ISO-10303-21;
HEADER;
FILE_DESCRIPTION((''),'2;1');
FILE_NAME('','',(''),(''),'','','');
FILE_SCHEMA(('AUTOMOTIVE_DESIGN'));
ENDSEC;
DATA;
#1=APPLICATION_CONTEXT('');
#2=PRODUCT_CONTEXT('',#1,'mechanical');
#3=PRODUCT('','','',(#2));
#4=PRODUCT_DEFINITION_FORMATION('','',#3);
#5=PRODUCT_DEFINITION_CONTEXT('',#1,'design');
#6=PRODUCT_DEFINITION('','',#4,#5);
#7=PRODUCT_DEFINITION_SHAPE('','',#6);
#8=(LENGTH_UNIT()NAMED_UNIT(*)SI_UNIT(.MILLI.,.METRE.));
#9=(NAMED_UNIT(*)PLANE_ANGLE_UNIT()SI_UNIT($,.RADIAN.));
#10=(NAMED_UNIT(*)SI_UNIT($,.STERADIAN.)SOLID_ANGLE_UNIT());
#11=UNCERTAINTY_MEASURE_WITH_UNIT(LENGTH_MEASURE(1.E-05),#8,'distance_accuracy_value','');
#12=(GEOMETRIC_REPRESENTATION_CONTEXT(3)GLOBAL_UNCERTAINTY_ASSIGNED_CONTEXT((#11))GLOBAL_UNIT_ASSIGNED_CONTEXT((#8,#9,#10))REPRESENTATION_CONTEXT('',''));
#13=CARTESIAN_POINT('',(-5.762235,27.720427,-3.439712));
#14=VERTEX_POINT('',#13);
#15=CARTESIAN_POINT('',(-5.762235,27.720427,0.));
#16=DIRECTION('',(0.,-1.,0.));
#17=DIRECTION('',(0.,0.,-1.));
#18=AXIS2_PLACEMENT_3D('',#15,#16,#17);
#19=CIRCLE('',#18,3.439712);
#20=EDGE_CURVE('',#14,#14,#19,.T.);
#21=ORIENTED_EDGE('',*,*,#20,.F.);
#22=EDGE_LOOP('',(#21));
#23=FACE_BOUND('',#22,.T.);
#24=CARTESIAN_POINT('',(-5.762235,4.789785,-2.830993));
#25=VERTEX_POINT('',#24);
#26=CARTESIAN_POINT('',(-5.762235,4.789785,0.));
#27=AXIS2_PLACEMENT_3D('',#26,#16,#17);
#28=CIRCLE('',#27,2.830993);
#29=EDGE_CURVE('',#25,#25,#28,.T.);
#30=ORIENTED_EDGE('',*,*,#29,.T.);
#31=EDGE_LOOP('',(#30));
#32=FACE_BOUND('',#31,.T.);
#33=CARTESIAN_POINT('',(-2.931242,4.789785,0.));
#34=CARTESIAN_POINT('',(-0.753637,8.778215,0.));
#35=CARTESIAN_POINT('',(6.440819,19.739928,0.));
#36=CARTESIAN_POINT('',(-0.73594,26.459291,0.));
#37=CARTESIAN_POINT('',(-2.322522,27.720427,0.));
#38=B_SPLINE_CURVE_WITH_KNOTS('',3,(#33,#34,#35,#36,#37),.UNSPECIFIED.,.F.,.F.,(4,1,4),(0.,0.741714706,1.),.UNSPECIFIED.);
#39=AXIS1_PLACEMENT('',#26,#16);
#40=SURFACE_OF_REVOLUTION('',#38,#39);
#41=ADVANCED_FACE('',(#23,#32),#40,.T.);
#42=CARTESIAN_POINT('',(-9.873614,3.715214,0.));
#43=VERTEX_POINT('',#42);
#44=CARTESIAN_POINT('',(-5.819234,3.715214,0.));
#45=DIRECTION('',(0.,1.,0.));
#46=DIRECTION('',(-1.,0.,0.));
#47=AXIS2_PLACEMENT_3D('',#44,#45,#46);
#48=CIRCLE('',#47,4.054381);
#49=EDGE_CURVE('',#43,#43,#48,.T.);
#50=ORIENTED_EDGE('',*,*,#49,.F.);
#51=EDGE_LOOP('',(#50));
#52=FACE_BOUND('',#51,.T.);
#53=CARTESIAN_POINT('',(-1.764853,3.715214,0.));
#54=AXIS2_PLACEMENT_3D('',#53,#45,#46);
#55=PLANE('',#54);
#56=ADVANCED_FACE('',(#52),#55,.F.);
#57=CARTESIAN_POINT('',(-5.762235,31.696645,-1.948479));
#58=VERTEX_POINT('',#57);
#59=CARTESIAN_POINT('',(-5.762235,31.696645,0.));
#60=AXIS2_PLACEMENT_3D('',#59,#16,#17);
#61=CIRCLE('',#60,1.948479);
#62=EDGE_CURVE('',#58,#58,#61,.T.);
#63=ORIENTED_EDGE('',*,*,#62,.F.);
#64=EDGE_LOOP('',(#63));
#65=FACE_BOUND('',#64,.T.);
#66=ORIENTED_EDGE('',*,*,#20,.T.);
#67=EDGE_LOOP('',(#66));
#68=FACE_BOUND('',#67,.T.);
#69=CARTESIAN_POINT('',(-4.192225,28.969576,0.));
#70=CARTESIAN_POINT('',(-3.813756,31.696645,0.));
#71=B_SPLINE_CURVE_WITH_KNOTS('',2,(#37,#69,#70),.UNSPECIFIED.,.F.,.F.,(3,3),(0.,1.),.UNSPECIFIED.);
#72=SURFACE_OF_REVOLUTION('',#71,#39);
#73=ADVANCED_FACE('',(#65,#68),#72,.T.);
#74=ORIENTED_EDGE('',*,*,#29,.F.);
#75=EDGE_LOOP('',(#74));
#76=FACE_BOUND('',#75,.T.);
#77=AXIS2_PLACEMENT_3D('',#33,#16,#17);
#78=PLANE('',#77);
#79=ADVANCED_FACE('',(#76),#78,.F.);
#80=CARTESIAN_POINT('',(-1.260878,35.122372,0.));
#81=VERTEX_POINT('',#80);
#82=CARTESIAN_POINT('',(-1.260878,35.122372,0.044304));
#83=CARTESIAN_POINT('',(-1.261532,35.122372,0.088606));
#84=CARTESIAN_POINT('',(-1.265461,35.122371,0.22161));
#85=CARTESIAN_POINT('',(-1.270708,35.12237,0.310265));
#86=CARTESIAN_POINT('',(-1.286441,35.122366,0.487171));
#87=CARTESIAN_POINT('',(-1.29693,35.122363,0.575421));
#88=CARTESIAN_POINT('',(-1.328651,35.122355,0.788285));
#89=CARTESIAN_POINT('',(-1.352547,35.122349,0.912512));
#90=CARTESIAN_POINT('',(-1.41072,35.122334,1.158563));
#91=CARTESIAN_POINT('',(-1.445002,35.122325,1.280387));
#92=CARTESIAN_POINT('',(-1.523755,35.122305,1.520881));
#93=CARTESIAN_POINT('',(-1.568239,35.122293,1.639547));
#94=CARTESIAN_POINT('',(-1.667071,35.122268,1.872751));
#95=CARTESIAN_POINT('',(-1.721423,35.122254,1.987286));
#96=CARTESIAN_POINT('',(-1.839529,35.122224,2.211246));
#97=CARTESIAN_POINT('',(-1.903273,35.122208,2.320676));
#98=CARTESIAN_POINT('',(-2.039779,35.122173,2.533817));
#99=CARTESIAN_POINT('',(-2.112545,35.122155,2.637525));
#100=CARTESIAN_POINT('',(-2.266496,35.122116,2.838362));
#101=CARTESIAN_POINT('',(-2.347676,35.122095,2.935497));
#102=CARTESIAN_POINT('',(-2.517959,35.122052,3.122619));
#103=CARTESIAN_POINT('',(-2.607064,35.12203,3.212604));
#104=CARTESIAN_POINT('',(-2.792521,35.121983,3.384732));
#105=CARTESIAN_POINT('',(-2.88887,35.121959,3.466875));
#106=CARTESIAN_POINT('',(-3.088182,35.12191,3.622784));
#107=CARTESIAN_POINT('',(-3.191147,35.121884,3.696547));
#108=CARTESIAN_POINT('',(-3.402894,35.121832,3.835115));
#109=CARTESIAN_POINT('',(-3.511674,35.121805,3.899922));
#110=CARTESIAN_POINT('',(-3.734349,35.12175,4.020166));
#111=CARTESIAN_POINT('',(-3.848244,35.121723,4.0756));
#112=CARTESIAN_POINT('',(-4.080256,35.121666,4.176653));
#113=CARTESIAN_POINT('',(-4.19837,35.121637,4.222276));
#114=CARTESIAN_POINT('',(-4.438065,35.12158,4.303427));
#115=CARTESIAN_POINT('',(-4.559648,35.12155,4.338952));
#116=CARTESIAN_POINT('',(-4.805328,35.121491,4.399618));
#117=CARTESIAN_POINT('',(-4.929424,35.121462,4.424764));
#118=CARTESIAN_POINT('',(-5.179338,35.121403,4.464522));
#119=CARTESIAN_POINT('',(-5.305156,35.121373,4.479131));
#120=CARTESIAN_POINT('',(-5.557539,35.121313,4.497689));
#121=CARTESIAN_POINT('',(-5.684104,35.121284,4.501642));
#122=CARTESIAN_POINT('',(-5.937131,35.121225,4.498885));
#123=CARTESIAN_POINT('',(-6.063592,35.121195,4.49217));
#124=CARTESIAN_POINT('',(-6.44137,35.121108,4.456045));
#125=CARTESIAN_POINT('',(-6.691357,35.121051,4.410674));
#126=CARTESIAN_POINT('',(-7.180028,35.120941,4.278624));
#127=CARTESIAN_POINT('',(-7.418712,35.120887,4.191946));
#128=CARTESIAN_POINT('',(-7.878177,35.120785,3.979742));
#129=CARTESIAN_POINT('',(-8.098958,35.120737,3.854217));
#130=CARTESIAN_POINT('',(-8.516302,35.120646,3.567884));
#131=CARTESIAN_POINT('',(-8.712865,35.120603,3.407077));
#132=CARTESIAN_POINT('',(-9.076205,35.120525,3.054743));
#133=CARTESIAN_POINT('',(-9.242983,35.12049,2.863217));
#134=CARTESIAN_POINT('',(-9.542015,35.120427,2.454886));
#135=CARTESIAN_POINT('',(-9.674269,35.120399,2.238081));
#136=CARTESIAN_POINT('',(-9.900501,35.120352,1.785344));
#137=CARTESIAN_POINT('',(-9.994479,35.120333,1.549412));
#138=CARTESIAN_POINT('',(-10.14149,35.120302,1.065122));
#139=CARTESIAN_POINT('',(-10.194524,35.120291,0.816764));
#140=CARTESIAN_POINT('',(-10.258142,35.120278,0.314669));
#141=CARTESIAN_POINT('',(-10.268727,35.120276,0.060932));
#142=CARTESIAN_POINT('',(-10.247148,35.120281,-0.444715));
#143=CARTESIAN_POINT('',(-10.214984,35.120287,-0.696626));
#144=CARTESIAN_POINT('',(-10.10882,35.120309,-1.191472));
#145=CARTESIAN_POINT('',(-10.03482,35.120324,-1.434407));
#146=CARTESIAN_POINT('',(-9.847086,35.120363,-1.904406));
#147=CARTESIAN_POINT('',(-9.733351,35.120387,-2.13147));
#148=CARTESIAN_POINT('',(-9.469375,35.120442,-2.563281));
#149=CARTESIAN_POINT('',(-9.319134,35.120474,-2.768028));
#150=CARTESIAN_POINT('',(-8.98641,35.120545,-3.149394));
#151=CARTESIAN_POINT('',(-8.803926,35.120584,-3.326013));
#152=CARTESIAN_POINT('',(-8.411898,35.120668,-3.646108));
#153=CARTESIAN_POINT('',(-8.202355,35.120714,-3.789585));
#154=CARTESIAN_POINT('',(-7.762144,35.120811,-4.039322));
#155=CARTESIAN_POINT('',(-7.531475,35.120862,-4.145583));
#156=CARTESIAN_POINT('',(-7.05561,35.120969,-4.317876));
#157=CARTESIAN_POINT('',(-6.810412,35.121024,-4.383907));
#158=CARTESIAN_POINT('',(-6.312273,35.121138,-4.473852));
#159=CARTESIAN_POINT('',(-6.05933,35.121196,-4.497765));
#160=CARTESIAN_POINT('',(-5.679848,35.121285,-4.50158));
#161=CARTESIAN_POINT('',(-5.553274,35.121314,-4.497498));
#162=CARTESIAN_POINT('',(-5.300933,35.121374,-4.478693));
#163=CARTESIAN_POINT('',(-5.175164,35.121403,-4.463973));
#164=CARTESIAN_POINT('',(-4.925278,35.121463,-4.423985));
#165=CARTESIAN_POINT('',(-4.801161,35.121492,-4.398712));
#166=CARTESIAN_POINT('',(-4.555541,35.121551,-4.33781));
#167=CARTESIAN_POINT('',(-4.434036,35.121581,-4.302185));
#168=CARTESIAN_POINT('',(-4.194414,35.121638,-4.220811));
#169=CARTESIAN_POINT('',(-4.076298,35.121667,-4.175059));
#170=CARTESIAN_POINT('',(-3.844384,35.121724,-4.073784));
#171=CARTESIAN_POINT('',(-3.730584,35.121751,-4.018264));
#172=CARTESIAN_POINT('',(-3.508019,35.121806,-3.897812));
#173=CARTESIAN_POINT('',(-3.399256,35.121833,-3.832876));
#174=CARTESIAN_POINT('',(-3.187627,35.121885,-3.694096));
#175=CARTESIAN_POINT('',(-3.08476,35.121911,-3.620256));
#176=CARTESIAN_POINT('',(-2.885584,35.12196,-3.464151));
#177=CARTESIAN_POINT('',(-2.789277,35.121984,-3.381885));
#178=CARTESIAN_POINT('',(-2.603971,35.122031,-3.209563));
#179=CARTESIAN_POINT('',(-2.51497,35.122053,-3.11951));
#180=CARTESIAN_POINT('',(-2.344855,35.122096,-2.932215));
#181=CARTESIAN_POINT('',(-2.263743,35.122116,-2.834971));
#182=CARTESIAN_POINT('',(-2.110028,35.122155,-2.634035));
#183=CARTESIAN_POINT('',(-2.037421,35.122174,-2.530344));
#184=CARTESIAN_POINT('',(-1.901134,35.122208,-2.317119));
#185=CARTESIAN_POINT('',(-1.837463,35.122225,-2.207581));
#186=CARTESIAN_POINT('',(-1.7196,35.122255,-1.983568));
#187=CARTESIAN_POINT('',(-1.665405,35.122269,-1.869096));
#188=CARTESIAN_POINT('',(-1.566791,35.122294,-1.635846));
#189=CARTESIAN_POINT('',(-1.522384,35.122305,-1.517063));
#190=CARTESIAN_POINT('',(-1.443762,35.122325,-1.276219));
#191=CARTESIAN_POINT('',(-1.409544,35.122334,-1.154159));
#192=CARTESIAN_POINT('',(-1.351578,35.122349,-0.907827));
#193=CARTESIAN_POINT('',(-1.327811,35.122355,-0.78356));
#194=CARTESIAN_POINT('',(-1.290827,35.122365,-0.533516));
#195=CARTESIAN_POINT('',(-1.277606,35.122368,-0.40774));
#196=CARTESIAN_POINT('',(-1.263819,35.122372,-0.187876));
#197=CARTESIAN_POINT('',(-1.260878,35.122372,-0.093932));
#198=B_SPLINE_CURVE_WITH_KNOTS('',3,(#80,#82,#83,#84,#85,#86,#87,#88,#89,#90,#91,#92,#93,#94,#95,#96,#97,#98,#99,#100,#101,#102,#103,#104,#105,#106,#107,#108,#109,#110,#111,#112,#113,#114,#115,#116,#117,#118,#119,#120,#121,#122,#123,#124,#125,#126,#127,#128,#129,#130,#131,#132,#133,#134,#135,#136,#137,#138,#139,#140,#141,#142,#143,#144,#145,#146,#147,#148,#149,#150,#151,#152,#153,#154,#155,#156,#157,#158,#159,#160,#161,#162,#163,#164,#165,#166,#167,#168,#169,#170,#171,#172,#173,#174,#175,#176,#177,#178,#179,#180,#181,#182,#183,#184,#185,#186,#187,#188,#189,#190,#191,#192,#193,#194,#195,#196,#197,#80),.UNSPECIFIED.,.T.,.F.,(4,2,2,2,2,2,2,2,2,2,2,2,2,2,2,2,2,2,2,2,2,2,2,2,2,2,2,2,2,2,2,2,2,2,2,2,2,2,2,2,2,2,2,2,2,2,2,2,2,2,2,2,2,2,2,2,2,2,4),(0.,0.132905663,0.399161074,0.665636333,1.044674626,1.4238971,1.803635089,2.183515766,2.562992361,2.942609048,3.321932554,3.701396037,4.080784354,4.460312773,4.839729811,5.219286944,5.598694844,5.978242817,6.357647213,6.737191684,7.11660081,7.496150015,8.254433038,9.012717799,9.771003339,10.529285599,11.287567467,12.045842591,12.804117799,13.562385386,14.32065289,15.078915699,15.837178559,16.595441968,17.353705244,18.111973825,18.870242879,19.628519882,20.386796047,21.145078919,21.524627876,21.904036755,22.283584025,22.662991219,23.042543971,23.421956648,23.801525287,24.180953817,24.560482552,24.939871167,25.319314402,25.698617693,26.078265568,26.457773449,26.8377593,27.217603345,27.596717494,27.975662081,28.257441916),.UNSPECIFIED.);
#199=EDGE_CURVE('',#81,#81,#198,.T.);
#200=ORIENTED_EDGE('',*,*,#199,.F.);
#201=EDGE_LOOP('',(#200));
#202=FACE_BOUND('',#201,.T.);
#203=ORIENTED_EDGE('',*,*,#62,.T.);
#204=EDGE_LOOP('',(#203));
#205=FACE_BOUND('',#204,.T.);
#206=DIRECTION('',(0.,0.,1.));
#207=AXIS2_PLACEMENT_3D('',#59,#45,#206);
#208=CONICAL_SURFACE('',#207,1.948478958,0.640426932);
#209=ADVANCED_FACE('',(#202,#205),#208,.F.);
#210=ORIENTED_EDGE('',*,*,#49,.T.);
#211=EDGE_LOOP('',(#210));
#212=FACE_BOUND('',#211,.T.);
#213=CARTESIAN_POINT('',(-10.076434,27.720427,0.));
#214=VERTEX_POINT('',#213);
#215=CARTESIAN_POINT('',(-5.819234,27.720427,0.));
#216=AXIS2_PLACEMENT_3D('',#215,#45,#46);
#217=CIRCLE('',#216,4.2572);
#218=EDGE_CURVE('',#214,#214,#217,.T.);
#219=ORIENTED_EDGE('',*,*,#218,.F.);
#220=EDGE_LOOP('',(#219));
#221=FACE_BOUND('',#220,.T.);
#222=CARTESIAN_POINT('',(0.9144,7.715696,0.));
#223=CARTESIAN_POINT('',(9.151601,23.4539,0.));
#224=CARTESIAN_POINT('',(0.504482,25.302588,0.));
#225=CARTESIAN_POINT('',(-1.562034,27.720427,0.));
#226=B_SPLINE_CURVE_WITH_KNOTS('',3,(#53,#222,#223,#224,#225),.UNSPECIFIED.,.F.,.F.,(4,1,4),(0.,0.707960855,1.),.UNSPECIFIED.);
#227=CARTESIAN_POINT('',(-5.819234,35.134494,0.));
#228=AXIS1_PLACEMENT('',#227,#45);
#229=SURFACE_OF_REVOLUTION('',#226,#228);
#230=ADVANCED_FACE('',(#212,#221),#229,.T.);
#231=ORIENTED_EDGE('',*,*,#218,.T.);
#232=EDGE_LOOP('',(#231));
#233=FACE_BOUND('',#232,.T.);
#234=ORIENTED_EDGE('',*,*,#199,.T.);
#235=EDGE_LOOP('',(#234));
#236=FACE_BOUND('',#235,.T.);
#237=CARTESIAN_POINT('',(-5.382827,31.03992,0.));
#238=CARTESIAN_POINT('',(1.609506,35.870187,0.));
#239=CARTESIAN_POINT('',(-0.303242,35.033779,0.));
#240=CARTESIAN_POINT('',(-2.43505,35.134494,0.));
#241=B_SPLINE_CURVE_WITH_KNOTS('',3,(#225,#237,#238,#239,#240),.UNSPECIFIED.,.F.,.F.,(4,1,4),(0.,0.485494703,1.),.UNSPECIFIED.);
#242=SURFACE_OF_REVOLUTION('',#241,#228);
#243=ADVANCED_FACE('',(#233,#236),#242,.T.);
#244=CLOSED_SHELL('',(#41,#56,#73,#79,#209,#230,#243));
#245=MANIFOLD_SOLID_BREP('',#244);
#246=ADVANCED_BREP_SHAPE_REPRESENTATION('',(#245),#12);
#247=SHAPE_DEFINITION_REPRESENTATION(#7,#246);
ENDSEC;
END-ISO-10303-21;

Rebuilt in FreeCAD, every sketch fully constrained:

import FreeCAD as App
import Part
import Sketcher
from FreeCAD import Vector
Q = App.Units.Quantity

doc = App.newDocument("Part")
body = doc.addObject("PartDesign::Body", "Body")

sketch1 = body.newObject("Sketcher::SketchObject", "Sketch")
sketch1.AttachmentSupport = (doc.getObject("XY_Plane"), [""])
sketch1.MapMode = "FlatFace"
sketch1.addGeometry([
    Part.LineSegment(Vector(-5.819234, 3.715214, 0), Vector(-1.764853, 3.715214, 0)),
    Part.BSplineCurve([Vector(-1.562034, 27.720427, 0), Vector(0.504482, 25.302588, 0), Vector(9.151601, 23.4539, 0), Vector(0.9144, 7.715696, 0), Vector(-1.764853, 3.715214, 0)], [4, 1, 4], [0, 0.292039145, 1], False, 3, [1, 1, 1, 1, 1], False),
    Part.BSplineCurve([Vector(-2.43505, 35.134494, 0), Vector(-0.303242, 35.033779, 0), Vector(1.609506, 35.870187, 0), Vector(-5.382827, 31.03992, 0), Vector(-1.562034, 27.720427, 0)], [4, 1, 4], [0, 0.514505297, 1], False, 3, [1, 1, 1, 1, 1], False),
    Part.LineSegment(Vector(-2.43505, 35.134494, 0), Vector(-5.819234, 35.134494, 0)),
    Part.LineSegment(Vector(-5.819234, 35.134494, 0), Vector(-5.819234, 3.715214, 0)),
], False)
sketch1.addGeometry(Part.LineSegment(Vector(-5.819234, 35.134494, 0), Vector(-5.819234, 3.715214, 0)), True)
sketch1.addConstraint([
    Sketcher.Constraint("Block", 1),
    Sketcher.Constraint("Block", 2),
    Sketcher.Constraint("Coincident", 0, 2, 1, 2),
    Sketcher.Constraint("Coincident", 2, 1, 3, 1),
    Sketcher.Constraint("Coincident", 3, 2, 4, 1),
    Sketcher.Constraint("Coincident", 4, 2, 0, 1),
    Sketcher.Constraint("Horizontal", 0),
    Sketcher.Constraint("Horizontal", 3),
    Sketcher.Constraint("Vertical", 4),
    Sketcher.Constraint("Vertical", 5),
    Sketcher.Constraint("Coincident", 5, 1, 3, 2),
    Sketcher.Constraint("Horizontal", 0, 2, 5, 2),
    Sketcher.Constraint("DistanceX", 0, 1, 0, 2, Q("4.054381 mm")),
])
revolution = body.newObject("PartDesign::Revolution", "Revolution")
revolution.Profile = sketch1
revolution.ReferenceAxis = (sketch1, ["Axis0"])
revolution.Angle = 360

sketch2 = body.newObject("Sketcher::SketchObject", "Sketch001")
sketch2.AttachmentSupport = (doc.getObject("XY_Plane"), [""])
sketch2.MapMode = "FlatFace"
sketch2.addGeometry([
    Part.LineSegment(Vector(-1.141097, 35.283108, 0), Vector(-5.762235, 35.283108, 0)),
    Part.LineSegment(Vector(-5.762235, 35.283108, 0), Vector(-5.762235, 4.789785, 0)),
    Part.LineSegment(Vector(-5.762235, 4.789785, 0), Vector(-2.931242, 4.789785, 0)),
    Part.BSplineCurve([Vector(-2.322522, 27.720427, 0), Vector(-0.73594, 26.459291, 0), Vector(6.440819, 19.739928, 0), Vector(-0.753637, 8.778215, 0), Vector(-2.931242, 4.789785, 0)], [4, 1, 4], [0, 0.258285294, 1], False, 3, [1, 1, 1, 1, 1], False),
    Part.BSplineCurve([Vector(-3.813756, 31.696645, 0), Vector(-4.192225, 28.969576, 0), Vector(-2.322522, 27.720427, 0)], [3, 3], [0, 1], False, 2, [1, 1, 1], False),
    Part.LineSegment(Vector(-3.813756, 31.696645, 0), Vector(-1.141097, 35.283108, 0)),
], False)
sketch2.addGeometry(Part.LineSegment(Vector(-5.762235, 4.789785, 0), Vector(-5.762235, 35.283108, 0)), True)
sketch2.addConstraint([
    Sketcher.Constraint("Block", 3),
    Sketcher.Constraint("Block", 4),
    Sketcher.Constraint("Coincident", 0, 2, 1, 1),
    Sketcher.Constraint("Coincident", 1, 2, 2, 1),
    Sketcher.Constraint("Coincident", 2, 2, 3, 2),
    Sketcher.Constraint("Coincident", 4, 1, 5, 1),
    Sketcher.Constraint("Coincident", 5, 2, 0, 1),
    Sketcher.Constraint("Horizontal", 0),
    Sketcher.Constraint("Vertical", 1),
    Sketcher.Constraint("Horizontal", 2),
    Sketcher.Constraint("Vertical", 6),
    Sketcher.Constraint("Coincident", 6, 1, 1, 2),
    Sketcher.Constraint("Horizontal", 5, 2, 6, 2),
    Sketcher.Constraint("DistanceX", 0, 2, 0, 1, Q("4.621138 mm")),
    Sketcher.Constraint("DistanceX", 2, 1, 2, 2, Q("2.830993 mm")),
    Sketcher.Constraint("DistanceY", 1, 2, 1, 1, Q("30.493322 mm")),
])
groove = body.newObject("PartDesign::Groove", "Groove")
groove.Profile = sketch2
groove.ReferenceAxis = (sketch2, ["Axis0"])
groove.Angle = 360

doc.recompute()
